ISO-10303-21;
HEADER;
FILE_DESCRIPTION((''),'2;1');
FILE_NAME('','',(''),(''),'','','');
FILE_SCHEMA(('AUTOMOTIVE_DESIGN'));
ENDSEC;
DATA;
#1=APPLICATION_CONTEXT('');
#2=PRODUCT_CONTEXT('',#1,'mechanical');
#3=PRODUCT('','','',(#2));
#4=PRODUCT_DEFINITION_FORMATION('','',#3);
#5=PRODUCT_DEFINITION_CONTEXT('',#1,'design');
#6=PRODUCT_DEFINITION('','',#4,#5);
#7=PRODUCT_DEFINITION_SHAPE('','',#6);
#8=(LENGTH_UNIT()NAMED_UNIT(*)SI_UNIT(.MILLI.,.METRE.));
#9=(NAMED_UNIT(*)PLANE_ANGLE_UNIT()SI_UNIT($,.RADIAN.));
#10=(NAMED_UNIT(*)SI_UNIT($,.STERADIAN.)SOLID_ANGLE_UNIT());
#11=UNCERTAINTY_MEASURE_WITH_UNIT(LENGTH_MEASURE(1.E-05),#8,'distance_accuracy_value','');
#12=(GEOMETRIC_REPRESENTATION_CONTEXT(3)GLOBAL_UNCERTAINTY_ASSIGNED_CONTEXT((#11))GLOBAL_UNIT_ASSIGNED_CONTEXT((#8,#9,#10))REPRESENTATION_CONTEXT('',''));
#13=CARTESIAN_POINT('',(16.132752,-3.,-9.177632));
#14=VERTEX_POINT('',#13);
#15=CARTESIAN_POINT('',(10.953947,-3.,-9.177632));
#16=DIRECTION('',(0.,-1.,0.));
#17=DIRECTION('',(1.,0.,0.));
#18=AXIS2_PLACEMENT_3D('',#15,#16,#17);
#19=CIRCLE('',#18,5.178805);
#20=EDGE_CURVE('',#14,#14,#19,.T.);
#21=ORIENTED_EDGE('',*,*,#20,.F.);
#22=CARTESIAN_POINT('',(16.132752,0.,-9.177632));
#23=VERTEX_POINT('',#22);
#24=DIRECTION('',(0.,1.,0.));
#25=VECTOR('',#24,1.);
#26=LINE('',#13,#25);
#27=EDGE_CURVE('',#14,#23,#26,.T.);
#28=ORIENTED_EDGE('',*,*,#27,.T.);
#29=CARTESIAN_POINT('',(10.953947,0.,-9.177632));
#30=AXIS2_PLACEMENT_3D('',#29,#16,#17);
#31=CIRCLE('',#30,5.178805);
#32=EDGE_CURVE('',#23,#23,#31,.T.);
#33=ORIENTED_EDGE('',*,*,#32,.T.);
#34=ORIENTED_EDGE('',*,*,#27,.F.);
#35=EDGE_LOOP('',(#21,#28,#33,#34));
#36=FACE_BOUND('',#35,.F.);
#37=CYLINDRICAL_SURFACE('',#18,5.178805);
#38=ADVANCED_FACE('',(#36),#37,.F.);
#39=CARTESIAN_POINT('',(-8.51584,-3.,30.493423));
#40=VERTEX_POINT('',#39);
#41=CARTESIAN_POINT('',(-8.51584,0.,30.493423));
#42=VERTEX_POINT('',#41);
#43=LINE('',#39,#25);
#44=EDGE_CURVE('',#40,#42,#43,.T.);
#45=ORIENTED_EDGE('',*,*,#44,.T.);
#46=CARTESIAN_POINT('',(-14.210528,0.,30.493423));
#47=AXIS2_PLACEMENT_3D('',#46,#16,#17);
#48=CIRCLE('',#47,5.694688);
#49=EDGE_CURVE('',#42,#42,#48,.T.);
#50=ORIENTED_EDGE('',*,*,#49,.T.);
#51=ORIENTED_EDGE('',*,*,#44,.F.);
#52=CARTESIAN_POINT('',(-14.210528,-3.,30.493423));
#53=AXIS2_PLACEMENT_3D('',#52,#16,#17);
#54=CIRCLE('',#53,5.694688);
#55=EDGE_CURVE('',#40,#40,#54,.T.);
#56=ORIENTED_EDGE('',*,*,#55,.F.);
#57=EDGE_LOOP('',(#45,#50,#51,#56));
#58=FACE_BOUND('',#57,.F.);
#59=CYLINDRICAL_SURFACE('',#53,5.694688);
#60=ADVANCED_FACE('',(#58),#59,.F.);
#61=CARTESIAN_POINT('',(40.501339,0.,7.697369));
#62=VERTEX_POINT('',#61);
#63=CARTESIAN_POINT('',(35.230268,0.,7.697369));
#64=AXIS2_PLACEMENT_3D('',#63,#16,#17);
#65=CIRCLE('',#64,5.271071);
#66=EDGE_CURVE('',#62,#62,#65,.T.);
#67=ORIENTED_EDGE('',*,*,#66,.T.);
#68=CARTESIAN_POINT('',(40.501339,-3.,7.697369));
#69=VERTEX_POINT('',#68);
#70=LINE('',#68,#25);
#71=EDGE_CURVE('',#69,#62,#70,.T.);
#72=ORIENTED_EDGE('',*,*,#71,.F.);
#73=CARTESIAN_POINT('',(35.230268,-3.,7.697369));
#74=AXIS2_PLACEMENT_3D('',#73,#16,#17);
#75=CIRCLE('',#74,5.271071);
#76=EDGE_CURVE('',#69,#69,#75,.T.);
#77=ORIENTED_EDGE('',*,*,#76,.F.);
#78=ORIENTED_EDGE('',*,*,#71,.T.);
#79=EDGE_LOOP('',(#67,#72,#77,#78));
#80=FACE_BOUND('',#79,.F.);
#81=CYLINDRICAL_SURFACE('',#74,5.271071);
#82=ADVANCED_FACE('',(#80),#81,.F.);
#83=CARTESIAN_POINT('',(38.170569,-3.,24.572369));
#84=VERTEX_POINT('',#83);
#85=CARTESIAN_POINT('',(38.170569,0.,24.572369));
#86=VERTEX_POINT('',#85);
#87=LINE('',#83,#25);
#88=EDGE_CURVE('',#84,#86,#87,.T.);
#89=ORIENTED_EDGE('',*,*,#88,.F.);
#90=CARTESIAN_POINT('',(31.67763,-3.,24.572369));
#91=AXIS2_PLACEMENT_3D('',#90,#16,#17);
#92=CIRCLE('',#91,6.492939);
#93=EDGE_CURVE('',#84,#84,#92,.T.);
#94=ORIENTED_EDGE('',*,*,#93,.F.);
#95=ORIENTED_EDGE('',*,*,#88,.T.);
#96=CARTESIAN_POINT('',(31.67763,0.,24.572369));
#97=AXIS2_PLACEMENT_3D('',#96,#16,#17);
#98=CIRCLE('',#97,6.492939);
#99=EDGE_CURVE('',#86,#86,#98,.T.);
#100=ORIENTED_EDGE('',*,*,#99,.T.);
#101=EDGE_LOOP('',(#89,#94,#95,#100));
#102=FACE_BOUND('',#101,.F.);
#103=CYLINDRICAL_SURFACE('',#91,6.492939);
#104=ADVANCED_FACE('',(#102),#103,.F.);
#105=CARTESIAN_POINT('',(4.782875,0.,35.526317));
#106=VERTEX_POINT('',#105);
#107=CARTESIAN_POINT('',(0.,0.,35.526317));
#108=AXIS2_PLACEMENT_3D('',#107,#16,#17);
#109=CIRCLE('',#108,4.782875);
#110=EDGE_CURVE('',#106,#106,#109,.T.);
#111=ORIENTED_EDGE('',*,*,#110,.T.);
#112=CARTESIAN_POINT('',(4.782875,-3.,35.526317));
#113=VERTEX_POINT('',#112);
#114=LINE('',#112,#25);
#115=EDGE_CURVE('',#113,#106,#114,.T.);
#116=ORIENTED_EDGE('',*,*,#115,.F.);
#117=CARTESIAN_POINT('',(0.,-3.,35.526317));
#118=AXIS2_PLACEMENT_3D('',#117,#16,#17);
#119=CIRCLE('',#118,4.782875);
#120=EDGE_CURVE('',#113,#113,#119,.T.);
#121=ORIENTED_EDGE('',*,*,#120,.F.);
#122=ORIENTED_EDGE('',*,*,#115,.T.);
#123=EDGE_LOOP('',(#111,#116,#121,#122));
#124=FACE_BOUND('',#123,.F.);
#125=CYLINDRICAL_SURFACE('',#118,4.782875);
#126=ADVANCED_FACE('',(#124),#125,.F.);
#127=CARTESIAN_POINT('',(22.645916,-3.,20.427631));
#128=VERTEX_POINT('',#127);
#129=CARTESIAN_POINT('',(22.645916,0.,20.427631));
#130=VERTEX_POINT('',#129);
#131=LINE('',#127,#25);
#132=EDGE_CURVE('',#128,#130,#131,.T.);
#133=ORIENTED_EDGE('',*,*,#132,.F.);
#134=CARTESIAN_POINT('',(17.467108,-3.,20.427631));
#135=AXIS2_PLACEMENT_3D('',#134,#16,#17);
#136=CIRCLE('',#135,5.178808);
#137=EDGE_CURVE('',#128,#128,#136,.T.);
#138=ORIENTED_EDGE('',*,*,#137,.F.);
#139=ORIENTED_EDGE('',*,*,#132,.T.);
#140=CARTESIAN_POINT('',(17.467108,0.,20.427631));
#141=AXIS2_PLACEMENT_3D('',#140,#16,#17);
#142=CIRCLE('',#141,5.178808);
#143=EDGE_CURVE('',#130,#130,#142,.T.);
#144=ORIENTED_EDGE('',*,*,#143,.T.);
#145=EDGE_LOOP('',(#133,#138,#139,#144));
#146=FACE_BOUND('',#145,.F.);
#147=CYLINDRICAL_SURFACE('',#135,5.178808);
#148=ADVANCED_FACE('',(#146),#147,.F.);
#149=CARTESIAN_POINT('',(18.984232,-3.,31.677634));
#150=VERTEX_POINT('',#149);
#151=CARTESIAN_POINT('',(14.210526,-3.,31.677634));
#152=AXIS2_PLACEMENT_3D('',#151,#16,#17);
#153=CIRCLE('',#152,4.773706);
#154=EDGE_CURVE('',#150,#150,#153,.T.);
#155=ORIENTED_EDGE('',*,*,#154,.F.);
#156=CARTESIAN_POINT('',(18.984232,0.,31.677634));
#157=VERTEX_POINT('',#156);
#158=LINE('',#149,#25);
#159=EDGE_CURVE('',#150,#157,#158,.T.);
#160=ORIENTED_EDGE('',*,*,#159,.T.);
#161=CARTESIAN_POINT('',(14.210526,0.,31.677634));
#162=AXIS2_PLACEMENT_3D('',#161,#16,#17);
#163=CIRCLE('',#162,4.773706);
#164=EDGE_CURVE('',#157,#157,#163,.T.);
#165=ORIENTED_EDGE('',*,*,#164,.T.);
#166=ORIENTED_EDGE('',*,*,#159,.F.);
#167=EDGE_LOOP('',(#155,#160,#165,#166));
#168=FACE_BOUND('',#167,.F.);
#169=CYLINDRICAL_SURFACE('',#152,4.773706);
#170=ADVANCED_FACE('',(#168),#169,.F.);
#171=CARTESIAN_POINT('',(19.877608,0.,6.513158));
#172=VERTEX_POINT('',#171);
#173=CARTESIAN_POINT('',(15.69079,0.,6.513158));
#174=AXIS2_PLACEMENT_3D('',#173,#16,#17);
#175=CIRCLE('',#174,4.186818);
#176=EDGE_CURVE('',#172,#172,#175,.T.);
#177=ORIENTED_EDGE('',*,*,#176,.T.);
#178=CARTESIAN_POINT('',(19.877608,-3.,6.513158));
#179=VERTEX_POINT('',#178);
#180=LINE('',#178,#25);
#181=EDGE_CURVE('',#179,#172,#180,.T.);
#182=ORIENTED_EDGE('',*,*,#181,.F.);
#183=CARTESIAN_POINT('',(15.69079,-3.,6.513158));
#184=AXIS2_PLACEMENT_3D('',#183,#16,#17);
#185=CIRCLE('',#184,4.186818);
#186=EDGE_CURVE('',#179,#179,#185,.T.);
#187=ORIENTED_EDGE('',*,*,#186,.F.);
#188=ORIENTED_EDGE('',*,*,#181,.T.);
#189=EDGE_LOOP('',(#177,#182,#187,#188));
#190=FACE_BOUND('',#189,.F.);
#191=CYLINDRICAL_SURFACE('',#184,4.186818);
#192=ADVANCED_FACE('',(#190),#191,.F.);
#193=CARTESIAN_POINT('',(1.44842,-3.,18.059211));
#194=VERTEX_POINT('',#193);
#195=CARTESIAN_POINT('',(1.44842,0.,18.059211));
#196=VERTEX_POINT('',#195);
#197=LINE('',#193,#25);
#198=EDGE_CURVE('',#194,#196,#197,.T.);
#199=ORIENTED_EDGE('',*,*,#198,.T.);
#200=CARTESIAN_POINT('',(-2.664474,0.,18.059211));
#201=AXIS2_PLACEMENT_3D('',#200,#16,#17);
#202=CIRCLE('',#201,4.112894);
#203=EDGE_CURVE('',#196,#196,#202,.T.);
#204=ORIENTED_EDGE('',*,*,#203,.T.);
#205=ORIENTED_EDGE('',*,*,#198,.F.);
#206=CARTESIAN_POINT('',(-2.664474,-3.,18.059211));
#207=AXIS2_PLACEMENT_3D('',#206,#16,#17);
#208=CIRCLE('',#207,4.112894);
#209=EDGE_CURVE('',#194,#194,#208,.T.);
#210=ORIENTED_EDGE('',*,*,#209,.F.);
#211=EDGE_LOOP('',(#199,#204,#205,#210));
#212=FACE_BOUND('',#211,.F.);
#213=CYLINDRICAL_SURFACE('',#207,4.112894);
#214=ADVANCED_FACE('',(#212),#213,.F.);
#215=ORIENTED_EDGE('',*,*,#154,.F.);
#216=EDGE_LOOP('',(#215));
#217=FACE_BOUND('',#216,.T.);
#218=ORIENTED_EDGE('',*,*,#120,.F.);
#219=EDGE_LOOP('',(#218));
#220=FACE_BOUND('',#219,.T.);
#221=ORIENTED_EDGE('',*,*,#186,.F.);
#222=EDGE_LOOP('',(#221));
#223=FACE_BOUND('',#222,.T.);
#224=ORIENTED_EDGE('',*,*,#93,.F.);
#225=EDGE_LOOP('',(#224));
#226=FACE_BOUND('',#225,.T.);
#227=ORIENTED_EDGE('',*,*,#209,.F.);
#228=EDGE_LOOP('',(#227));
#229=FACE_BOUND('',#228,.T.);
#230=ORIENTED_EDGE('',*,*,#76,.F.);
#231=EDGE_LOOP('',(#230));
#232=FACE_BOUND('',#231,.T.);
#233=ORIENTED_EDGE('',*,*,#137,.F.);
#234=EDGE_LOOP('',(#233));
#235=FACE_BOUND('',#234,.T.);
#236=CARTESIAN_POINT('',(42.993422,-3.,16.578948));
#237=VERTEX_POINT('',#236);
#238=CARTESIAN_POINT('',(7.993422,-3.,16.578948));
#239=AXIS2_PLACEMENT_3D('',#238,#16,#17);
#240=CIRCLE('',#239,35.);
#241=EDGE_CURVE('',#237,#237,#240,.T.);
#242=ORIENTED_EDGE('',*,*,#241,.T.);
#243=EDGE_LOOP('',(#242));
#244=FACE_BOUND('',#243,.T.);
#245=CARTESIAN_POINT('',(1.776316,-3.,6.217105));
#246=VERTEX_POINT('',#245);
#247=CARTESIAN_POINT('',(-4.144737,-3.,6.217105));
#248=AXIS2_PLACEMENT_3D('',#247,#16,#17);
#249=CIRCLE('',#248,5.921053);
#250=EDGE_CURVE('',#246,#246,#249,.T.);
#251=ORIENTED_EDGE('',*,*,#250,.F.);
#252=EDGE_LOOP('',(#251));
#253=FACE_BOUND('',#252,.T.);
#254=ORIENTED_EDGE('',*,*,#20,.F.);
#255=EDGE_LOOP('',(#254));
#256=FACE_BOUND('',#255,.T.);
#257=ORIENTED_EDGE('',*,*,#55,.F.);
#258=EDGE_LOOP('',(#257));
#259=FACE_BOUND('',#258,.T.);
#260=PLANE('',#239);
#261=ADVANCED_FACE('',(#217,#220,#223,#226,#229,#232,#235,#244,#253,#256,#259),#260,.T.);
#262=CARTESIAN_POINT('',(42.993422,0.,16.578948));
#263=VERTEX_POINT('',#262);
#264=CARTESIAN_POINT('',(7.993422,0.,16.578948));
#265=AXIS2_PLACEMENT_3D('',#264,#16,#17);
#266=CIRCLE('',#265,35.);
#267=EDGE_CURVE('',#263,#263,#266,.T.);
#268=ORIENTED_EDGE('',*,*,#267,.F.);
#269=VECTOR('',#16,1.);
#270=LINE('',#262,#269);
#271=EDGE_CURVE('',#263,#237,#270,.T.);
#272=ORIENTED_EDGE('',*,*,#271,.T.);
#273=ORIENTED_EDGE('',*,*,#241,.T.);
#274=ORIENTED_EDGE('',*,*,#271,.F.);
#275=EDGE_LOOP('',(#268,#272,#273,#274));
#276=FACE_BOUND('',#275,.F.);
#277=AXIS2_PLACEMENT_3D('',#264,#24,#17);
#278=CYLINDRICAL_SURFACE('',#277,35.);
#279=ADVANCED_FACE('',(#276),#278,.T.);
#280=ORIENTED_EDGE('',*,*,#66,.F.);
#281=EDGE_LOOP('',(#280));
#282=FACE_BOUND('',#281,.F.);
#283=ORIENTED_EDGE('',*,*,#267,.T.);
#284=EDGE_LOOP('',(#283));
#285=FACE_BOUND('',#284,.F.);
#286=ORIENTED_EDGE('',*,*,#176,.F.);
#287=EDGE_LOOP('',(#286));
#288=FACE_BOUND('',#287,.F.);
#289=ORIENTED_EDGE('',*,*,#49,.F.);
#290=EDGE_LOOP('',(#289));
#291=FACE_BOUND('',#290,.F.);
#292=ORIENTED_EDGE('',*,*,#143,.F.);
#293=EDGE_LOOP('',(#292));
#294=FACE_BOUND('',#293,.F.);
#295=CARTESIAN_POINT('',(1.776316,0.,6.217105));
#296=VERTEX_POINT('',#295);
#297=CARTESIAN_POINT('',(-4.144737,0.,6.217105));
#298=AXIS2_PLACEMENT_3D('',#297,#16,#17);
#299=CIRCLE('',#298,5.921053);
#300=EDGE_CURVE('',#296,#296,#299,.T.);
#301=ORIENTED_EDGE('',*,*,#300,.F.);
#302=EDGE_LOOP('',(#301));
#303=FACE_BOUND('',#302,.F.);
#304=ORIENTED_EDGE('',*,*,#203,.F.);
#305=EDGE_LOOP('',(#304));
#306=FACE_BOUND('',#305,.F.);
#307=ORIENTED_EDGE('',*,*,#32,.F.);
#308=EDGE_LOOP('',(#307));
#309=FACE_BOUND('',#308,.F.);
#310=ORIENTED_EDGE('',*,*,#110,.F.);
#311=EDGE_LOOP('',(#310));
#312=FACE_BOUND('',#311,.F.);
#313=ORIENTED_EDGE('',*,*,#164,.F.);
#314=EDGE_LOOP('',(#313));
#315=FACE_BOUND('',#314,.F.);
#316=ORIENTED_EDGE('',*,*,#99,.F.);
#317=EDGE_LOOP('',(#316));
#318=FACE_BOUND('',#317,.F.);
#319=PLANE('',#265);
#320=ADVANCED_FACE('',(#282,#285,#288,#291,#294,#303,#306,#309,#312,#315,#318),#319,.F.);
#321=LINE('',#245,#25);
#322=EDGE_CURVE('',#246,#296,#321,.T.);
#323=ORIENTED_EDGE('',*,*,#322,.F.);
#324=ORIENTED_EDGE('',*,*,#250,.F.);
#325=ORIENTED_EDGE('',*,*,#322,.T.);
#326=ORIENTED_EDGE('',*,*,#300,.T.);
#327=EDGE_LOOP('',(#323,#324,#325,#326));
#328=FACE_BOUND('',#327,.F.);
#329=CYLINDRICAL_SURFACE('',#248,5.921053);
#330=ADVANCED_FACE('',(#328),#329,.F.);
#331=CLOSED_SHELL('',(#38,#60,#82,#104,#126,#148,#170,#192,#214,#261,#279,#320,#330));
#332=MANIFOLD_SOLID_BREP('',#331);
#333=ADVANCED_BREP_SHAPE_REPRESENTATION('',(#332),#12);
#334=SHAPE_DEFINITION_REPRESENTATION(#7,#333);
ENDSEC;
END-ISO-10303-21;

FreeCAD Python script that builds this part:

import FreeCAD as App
import Part
import Sketcher
from FreeCAD import Vector
Q = App.Units.Quantity

doc = App.newDocument("Part")
body = doc.addObject("PartDesign::Body", "Body")

sketch1 = body.newObject("Sketcher::SketchObject", "Sketch")
sketch1.AttachmentSupport = (doc.getObject("XZ_Plane"), [""])
sketch1.MapMode = "FlatFace"
sketch1.addGeometry(Part.Circle(Vector(8, 17, 0), Vector(0, 0, 1), 35), False)
sketch1.addConstraint([
    Sketcher.Constraint("Diameter", 0, Q("70 mm")),
    Sketcher.Constraint("DistanceX", -1, 1, 0, 3, Q("7.993422 mm")),
    Sketcher.Constraint("DistanceY", -1, 1, 0, 3, Q("16.578948 mm")),
])
pad1 = body.newObject("PartDesign::Pad", "Pad")
pad1.Profile = sketch1
pad1.Length = 3

sketch2 = body.newObject("Sketcher::SketchObject", "Sketch001")
sketch2.AttachmentSupport = (doc.getObject("XZ_Plane"), [""])
sketch2.MapMode = "FlatFace"
sketch2.AttachmentOffset = App.Placement(Vector(0, 0, 3), App.Rotation())
sketch2.addGeometry([
    Part.Circle(Vector(0, 35.5, 0), Vector(0, 0, 1), 4.8),
    Part.Circle(Vector(31.7, 24.6, 0), Vector(0, 0, 1), 6.5),
    Part.Circle(Vector(-2.7, 18.1, 0), Vector(0, 0, 1), 4.1),
    Part.Circle(Vector(15.7, 6.5, 0), Vector(0, 0, 1), 4.2),
    Part.Circle(Vector(14.2, 31.7, 0), Vector(0, 0, 1), 4.8),
    Part.Circle(Vector(-4.1, 6.2, 0), Vector(0, 0, 1), 5.9),
    Part.Circle(Vector(-14.2, 30.5, 0), Vector(0, 0, 1), 5.7),
    Part.Circle(Vector(35.2, 7.7, 0), Vector(0, 0, 1), 5.3),
    Part.Circle(Vector(11, -9.2, 0), Vector(0, 0, 1), 5.2),
    Part.Circle(Vector(17.5, 20.4, 0), Vector(0, 0, 1), 5.2),
], False)
sketch2.addConstraint([
    Sketcher.Constraint("PointOnObject", 0, 3, -2),
    Sketcher.Constraint("Diameter", 0, Q("9.56575 mm")),
    Sketcher.Constraint("Diameter", 8, Q("10.35761 mm")),
    Sketcher.Constraint("DistanceY", 8, 3, 1, 3, Q("33.750001 mm")),
    Sketcher.Constraint("Diameter", 1, Q("12.985878 mm")),
    Sketcher.Constraint("Diameter", 2, Q("8.225788 mm")),
    Sketcher.Constraint("Diameter", 3, Q("8.373636 mm")),
    Sketcher.Constraint("Diameter", 4, Q("9.547412 mm")),
    Sketcher.Constraint("Diameter", 5, Q("11.842106 mm")),
    Sketcher.Constraint("Diameter", 6, Q("11.389376 mm")),
    Sketcher.Constraint("Diameter", 7, Q("10.542142 mm")),
    Sketcher.Constraint("Diameter", 9, Q("10.357616 mm")),
    Sketcher.Constraint("DistanceX", 2, 3, 4, 3, Q("16.875 mm")),
    Sketcher.Constraint("DistanceY", 7, 3, 1, 3, Q("16.875 mm")),
    Sketcher.Constraint("DistanceX", -1, 1, 1, 3, Q("31.67763 mm")),
    Sketcher.Constraint("DistanceY", -1, 1, 1, 3, Q("24.572369 mm")),
    Sketcher.Constraint("DistanceY", -1, 1, 2, 3, Q("18.059211 mm")),
    Sketcher.Constraint("DistanceX", -1, 1, 3, 3, Q("15.69079 mm")),
    Sketcher.Constraint("DistanceX", -1, 1, 7, 3, Q("35.230268 mm")),
    Sketcher.Constraint("DistanceY", -1, 1, 9, 3, Q("20.427631 mm")),
    Sketcher.Constraint("DistanceY", 3, 3, 1, 3, Q("18.059211 mm")),
    Sketcher.Constraint("DistanceY", 3, 3, 0, 3, Q("29.013159 mm")),
    Sketcher.Constraint("DistanceY", 5, 3, 0, 3, Q("29.309212 mm")),
    Sketcher.Constraint("DistanceY", 5, 3, 4, 3, Q("25.460529 mm")),
    Sketcher.Constraint("DistanceY", 2, 3, 6, 3, Q("12.434212 mm")),
    Sketcher.Constraint("DistanceX", 6, 3, 5, 3, Q("10.065791 mm")),
    Sketcher.Constraint("DistanceX", 6, 3, 3, 3, Q("29.901318 mm")),
    Sketcher.Constraint("DistanceX", 8, 3, 7, 3, Q("24.276321 mm")),
    Sketcher.Constraint("DistanceX", 2, 3, 8, 3, Q("13.618421 mm")),
    Sketcher.Constraint("DistanceX", 4, 3, 9, 3, Q("3.256582 mm")),
])
pocket1 = body.newObject("PartDesign::Pocket", "Pocket")
pocket1.Profile = sketch2
pocket1.Length = 25

doc.recompute()
